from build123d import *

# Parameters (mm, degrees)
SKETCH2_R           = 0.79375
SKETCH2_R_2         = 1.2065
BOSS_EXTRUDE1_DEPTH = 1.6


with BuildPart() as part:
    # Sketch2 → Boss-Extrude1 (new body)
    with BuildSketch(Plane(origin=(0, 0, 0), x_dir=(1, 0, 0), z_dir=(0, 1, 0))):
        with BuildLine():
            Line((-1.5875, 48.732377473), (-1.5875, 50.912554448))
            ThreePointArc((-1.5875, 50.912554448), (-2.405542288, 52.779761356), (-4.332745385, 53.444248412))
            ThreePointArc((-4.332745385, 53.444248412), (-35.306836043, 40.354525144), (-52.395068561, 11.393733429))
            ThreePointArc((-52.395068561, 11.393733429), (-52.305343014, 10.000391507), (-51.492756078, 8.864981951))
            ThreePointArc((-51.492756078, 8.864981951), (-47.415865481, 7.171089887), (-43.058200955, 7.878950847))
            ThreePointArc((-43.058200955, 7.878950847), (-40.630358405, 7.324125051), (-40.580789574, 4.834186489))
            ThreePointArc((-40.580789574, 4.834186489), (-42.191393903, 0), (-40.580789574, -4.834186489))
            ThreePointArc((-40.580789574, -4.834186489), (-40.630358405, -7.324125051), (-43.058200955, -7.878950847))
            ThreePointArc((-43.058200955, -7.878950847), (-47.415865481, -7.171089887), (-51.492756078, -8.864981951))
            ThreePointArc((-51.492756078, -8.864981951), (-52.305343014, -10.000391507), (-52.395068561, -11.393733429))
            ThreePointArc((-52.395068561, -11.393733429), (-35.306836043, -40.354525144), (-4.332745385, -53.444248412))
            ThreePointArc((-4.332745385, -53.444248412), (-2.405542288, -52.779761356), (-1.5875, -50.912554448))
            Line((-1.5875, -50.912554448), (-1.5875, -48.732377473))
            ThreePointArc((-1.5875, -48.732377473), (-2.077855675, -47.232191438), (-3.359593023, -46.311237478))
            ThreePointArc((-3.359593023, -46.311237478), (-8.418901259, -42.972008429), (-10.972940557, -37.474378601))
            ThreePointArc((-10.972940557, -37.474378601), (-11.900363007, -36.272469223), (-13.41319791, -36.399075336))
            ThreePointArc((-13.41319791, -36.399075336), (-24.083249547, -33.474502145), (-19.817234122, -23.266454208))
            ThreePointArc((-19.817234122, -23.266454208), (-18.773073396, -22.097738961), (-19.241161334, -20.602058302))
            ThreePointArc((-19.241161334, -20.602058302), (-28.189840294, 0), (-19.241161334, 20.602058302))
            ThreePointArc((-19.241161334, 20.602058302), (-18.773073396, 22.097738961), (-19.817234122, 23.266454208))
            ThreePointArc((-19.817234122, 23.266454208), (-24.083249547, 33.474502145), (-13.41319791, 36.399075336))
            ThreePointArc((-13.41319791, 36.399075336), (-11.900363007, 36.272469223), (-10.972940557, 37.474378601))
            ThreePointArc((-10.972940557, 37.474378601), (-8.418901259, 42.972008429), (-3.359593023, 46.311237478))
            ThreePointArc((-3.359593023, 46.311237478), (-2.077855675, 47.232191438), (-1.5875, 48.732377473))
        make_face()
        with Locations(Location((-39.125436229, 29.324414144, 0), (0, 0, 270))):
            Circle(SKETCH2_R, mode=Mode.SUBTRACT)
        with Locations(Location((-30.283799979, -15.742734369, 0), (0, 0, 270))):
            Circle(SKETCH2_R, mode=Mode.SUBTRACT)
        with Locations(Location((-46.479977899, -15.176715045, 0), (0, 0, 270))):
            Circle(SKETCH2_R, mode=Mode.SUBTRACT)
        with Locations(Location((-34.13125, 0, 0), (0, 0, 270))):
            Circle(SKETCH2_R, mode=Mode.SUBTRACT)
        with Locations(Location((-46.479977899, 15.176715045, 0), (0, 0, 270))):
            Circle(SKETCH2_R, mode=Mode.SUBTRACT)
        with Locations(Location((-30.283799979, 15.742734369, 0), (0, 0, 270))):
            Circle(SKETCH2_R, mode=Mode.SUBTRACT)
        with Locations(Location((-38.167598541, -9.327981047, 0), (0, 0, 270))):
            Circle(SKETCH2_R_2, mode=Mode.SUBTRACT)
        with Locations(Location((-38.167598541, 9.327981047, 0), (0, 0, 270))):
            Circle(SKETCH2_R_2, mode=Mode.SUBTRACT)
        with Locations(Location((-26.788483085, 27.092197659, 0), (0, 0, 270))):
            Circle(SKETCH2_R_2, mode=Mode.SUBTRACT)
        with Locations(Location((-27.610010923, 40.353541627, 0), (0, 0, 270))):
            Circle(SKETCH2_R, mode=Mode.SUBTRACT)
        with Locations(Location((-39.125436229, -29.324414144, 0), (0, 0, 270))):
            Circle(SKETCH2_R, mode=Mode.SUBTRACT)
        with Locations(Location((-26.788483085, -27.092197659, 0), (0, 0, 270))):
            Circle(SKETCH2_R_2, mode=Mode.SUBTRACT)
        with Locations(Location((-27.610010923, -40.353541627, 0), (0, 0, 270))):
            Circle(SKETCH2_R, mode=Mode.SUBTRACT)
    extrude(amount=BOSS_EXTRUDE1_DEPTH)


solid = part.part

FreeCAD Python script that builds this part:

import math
import FreeCAD as App
import Part
import Sketcher

V = App.Vector
Q = App.Units.Quantity

doc = App.newDocument("Part")
params = doc.addObject("Spreadsheet::Sheet", "Params")
for row, (alias, value) in enumerate([
    ("sketch1_radius", "0.1 in"),
    ("sketch1_radius2", "0.29 in"),
    ("sketch1_diameter", "0.0625 in"),
    ("sketch1_diameter2", "0.095 in"),
    ("sketch1_radius3", "0.4375 in"),
    ("pad1_length", "1.6 mm"),
], start=1):
    params.set(f"A{row}", alias)
    params.set(f"B{row}", "=" + value)
    params.setAlias(f"B{row}", alias)

body = doc.addObject("PartDesign::Body", "Body")

# Sketch on XZ plane
sketch1 = body.newObject("Sketcher::SketchObject", "Sketch")
sketch1.AttachmentSupport = (doc.getObject("XZ_Plane"), [""])
sketch1.MapMode = "FlatFace"
sketch1.addGeometry(Part.LineSegment(V(-1.6, -48.7, 0), V(-1.6, -50.9, 0)), False)
sketch1.addGeometry(Part.ArcOfCircle(Part.Circle(V(-4.1, -50.9, 0), V(0, 0, 1), 2.5), math.radians(-95), math.radians(0)), False)
sketch1.addGeometry(Part.ArcOfCircle(Part.Circle(V(0, 0, 0), V(0, 0, 1), 53.6), math.radians(-168), math.radians(-95)), False)
sketch1.addGeometry(Part.ArcOfCircle(Part.Circle(V(-49.9, -10.9, 0), V(0, 0, 1), 2.5), math.radians(128), math.radians(192)), False)
sketch1.addGeometry(Part.ArcOfCircle(Part.Circle(V(-46.5, -15.2, 0), V(0, 0, 1), 8.1), math.radians(65), math.radians(128)), False)
sketch1.addGeometry(Part.ArcOfCircle(Part.Circle(V(-42.2, -6, 0), V(0, 0, 1), 2), math.radians(-115), math.radians(37)), False)
sketch1.addGeometry(Part.ArcOfCircle(Part.Circle(V(-34.1, 0, 0), V(0, 0, 1), 8.1), math.radians(143), math.radians(217)), False)
sketch1.addGeometry(Part.ArcOfCircle(Part.Circle(V(-42.2, 6, 0), V(0, 0, 1), 2), math.radians(-37), math.radians(115)), False)
sketch1.addGeometry(Part.ArcOfCircle(Part.Circle(V(-46.5, 15.2, 0), V(0, 0, 1), 8.1), math.radians(-128), math.radians(-65)), False)
sketch1.addGeometry(Part.ArcOfCircle(Part.Circle(V(-49.9, 10.9, 0), V(0, 0, 1), 2.5), math.radians(168), math.radians(232)), False)
sketch1.addGeometry(Part.ArcOfCircle(Part.Circle(V(0, 0, 0), V(0, 0, 1), 53.6), math.radians(95), math.radians(168)), False)
sketch1.addGeometry(Part.ArcOfCircle(Part.Circle(V(-4.1, 50.9, 0), V(0, 0, 1), 2.5), math.radians(0), math.radians(95)), False)
sketch1.addGeometry(Part.LineSegment(V(-1.6, 50.9, 0), V(-1.6, 48.7, 0)), False)
sketch1.addGeometry(Part.ArcOfCircle(Part.Circle(V(-4.1, 48.7, 0), V(0, 0, 1), 2.5), math.radians(-72), math.radians(0)), False)
sketch1.addGeometry(Part.ArcOfCircle(Part.Circle(V(0, 35.7, 0), V(0, 0, 1), 11.1), math.radians(108), math.radians(171)), False)
sketch1.addGeometry(Part.ArcOfCircle(Part.Circle(V(-12.5, 37.7, 0), V(0, 0, 1), 1.6), math.radians(-123), math.radians(-9)), False)
sketch1.addGeometry(Part.ArcOfCircle(Part.Circle(V(-17.5, 30.2, 0), V(0, 0, 1), 7.4), math.radians(57), math.radians(251)), False)
sketch1.addGeometry(Part.ArcOfCircle(Part.Circle(V(-20.3, 21.8, 0), V(0, 0, 1), 1.6), math.radians(-47), math.radians(71)), False)
sketch1.addGeometry(Part.ArcOfCircle(Part.Circle(V(0, 0, 0), V(0, 0, 1), 28.2), math.radians(133), math.radians(227)), False)
sketch1.addGeometry(Part.ArcOfCircle(Part.Circle(V(-20.3, -21.8, 0), V(0, 0, 1), 1.6), math.radians(-71), math.radians(47)), False)
sketch1.addGeometry(Part.ArcOfCircle(Part.Circle(V(-17.5, -30.2, 0), V(0, 0, 1), 7.4), math.radians(109), math.radians(303)), False)
sketch1.addGeometry(Part.ArcOfCircle(Part.Circle(V(-12.5, -37.7, 0), V(0, 0, 1), 1.6), math.radians(9), math.radians(123)), False)
sketch1.addGeometry(Part.ArcOfCircle(Part.Circle(V(0, -35.7, 0), V(0, 0, 1), 11.1), math.radians(-171), math.radians(-108)), False)
sketch1.addGeometry(Part.ArcOfCircle(Part.Circle(V(-4.1, -48.7, 0), V(0, 0, 1), 2.5), math.radians(0), math.radians(72)), False)
sketch1.addGeometry(Part.Circle(V(-39.1, 29.3, 0), V(0, 0, 1), 0.8), False)
sketch1.addGeometry(Part.Circle(V(-46.5, 15.2, 0), V(0, 0, 1), 0.8), False)
sketch1.addGeometry(Part.Circle(V(-38.2, 9.3, 0), V(0, 0, 1), 1.2), False)
sketch1.addGeometry(Part.Circle(V(-27.6, 40.4, 0), V(0, 0, 1), 0.8), False)
sketch1.addGeometry(Part.Circle(V(-26.8, 27.1, 0), V(0, 0, 1), 1.2), False)
sketch1.addGeometry(Part.Circle(V(-30.3, 15.7, 0), V(0, 0, 1), 0.8), False)
sketch1.addGeometry(Part.Circle(V(-46.5, -15.2, 0), V(0, 0, 1), 0.8), False)
sketch1.addGeometry(Part.Circle(V(-38.2, -9.3, 0), V(0, 0, 1), 1.2), False)
sketch1.addGeometry(Part.Circle(V(-39.1, -29.3, 0), V(0, 0, 1), 0.8), False)
sketch1.addGeometry(Part.Circle(V(-34.1, 0, 0), V(0, 0, 1), 0.8), False)
sketch1.addGeometry(Part.Circle(V(-30.3, -15.7, 0), V(0, 0, 1), 0.8), False)
sketch1.addGeometry(Part.Circle(V(-26.8, -27.1, 0), V(0, 0, 1), 1.2), False)
sketch1.addGeometry(Part.Circle(V(-27.6, -40.4, 0), V(0, 0, 1), 0.8), False)
sketch1.addConstraint(Sketcher.Constraint("Tangent", 0, 2, 1, 2))
sketch1.addConstraint(Sketcher.Constraint("Tangent", 1, 1, 2, 2))
sketch1.addConstraint(Sketcher.Constraint("Tangent", 2, 1, 3, 2))
sketch1.addConstraint(Sketcher.Constraint("Tangent", 3, 1, 4, 2))
sketch1.addConstraint(Sketcher.Constraint("Tangent", 4, 1, 5, 1))
sketch1.addConstraint(Sketcher.Constraint("Tangent", 5, 2, 6, 2))
sketch1.addConstraint(Sketcher.Constraint("Tangent", 6, 1, 7, 1))
sketch1.addConstraint(Sketcher.Constraint("Tangent", 7, 2, 8, 2))
sketch1.addConstraint(Sketcher.Constraint("Tangent", 8, 1, 9, 2))
sketch1.addConstraint(Sketcher.Constraint("Tangent", 9, 1, 10, 2))
sketch1.addConstraint(Sketcher.Constraint("Tangent", 10, 1, 11, 2))
sketch1.addConstraint(Sketcher.Constraint("Tangent", 11, 1, 12, 1))
sketch1.addConstraint(Sketcher.Constraint("Tangent", 12, 2, 13, 2))
sketch1.addConstraint(Sketcher.Constraint("Tangent", 13, 1, 14, 1))
sketch1.addConstraint(Sketcher.Constraint("Tangent", 14, 2, 15, 2))
sketch1.addConstraint(Sketcher.Constraint("Tangent", 15, 1, 16, 1))
sketch1.addConstraint(Sketcher.Constraint("Tangent", 16, 2, 17, 2))
sketch1.addConstraint(Sketcher.Constraint("Tangent", 17, 1, 18, 1))
sketch1.addConstraint(Sketcher.Constraint("Tangent", 18, 2, 19, 2))
sketch1.addConstraint(Sketcher.Constraint("Tangent", 19, 1, 20, 1))
sketch1.addConstraint(Sketcher.Constraint("Tangent", 20, 2, 21, 2))
sketch1.addConstraint(Sketcher.Constraint("Tangent", 21, 1, 22, 1))
sketch1.addConstraint(Sketcher.Constraint("Tangent", 22, 2, 23, 2))
sketch1.addConstraint(Sketcher.Constraint("Tangent", 23, 1, 0, 1))
sketch1.addConstraint(Sketcher.Constraint("Vertical", 0))
sketch1.addConstraint(Sketcher.Constraint("Vertical", 12))
sketch1.addConstraint(Sketcher.Constraint("Coincident", 2, 3, -1, 1))
sketch1.addConstraint(Sketcher.Constraint("Coincident", 10, 3, -1, 1))
sketch1.addConstraint(Sketcher.Constraint("Coincident", 18, 3, -1, 1))
sketch1.addConstraint(Sketcher.Constraint("Coincident", 25, 3, 8, 3))
sketch1.addConstraint(Sketcher.Constraint("Coincident", 30, 3, 4, 3))
sketch1.addConstraint(Sketcher.Constraint("Coincident", 33, 3, 6, 3))
sketch1.addConstraint(Sketcher.Constraint("Equal", 1, 3))
sketch1.addConstraint(Sketcher.Constraint("Equal", 4, 6))
sketch1.addConstraint(Sketcher.Constraint("Equal", 5, 7))
sketch1.addConstraint(Sketcher.Constraint("Equal", 6, 8))
sketch1.addConstraint(Sketcher.Constraint("Equal", 3, 9))
sketch1.addConstraint(Sketcher.Constraint("Equal", 2, 10))
sketch1.addConstraint(Sketcher.Constraint("Equal", 9, 11))
sketch1.addConstraint(Sketcher.Constraint("Equal", 11, 13))
sketch1.addConstraint(Sketcher.Constraint("Equal", 15, 17))
sketch1.addConstraint(Sketcher.Constraint("Equal", 17, 19))
sketch1.addConstraint(Sketcher.Constraint("Equal", 16, 20))
sketch1.addConstraint(Sketcher.Constraint("Equal", 19, 21))
sketch1.addConstraint(Sketcher.Constraint("Equal", 14, 22))
sketch1.addConstraint(Sketcher.Constraint("Equal", 13, 23))
sketch1.addConstraint(Sketcher.Constraint("Equal", 24, 25))
sketch1.addConstraint(Sketcher.Constraint("Equal", 25, 27))
sketch1.addConstraint(Sketcher.Constraint("Equal", 26, 28))
sketch1.addConstraint(Sketcher.Constraint("Equal", 27, 29))
sketch1.addConstraint(Sketcher.Constraint("Equal", 29, 30))
sketch1.addConstraint(Sketcher.Constraint("Equal", 28, 31))
sketch1.addConstraint(Sketcher.Constraint("Equal", 30, 32))
sketch1.addConstraint(Sketcher.Constraint("Equal", 32, 33))
sketch1.addConstraint(Sketcher.Constraint("Equal", 33, 34))
sketch1.addConstraint(Sketcher.Constraint("Equal", 31, 35))
sketch1.addConstraint(Sketcher.Constraint("Equal", 34, 36))
sketch1.addConstraint(Sketcher.Constraint("Symmetric", 14, 3, 22, 3, -1, 1))
sketch1.addConstraint(Sketcher.Constraint("Symmetric", 5, 3, 7, 3, -1))
sketch1.addConstraint(Sketcher.Constraint("Symmetric", 16, 3, 20, 3, -1))
sketch1.addConstraint(Sketcher.Constraint("Symmetric", 13, 3, 23, 3, -1))
sketch1.addConstraint(Sketcher.Constraint("Symmetric", 26, 3, 31, 3, -1))
sketch1.addConstraint(Sketcher.Constraint("Symmetric", 24, 3, 32, 3, -1))
sketch1.addConstraint(Sketcher.Constraint("Symmetric", 29, 3, 34, 3, -1))
sketch1.addConstraint(Sketcher.Constraint("Symmetric", 28, 3, 35, 3, -1))
sketch1.addConstraint(Sketcher.Constraint("Symmetric", 27, 3, 36, 3, -1))
sketch1.addConstraint(Sketcher.Constraint("Vertical", 4, 3, 8, 3))
sketch1.addConstraint(Sketcher.Constraint("Radius", 1, Q("0.1 in")))
sketch1.addConstraint(Sketcher.Constraint("Radius", 16, Q("0.29 in")))
sketch1.addConstraint(Sketcher.Constraint("Diameter", 24, Q("0.0625 in")))
sketch1.addConstraint(Sketcher.Constraint("Diameter", 26, Q("0.095 in")))
sketch1.addConstraint(Sketcher.Constraint("Radius", 14, Q("0.4375 in")))
sketch1.addConstraint(Sketcher.Constraint("Radius", 15, Q("0.0625 in")))
sketch1.addConstraint(Sketcher.Constraint("DistanceX", 6, 3, -1, 1, Q("1.34375 in")))
sketch1.addConstraint(Sketcher.Constraint("DistanceY", -1, 1, 14, 3, Q("1.40625 in")))
sketch1.addConstraint(Sketcher.Constraint("DistanceX", 16, 3, -1, 1, Q("0.6875 in")))
sketch1.addConstraint(Sketcher.Constraint("DistanceX", 0, 2, -1, 1, Q("0.0625 in")))
sketch1.addConstraint(Sketcher.Constraint("Radius", 2, 53.619589))
sketch1.addConstraint(Sketcher.Constraint("Radius", 5, 2.02286))
sketch1.addConstraint(Sketcher.Constraint("Radius", 18, 28.18984))
sketch1.addConstraint(Sketcher.Constraint("Radius", 4, 8.060144))
sketch1.addConstraint(Sketcher.Constraint("DistanceY", 28, 3, 27, 3, Q("0.5221002 in")))
sketch1.addConstraint(Sketcher.Constraint("DistanceX", 26, 3, -1, 1, 38.167599))
sketch1.addConstraint(Sketcher.Constraint("DistanceX", 29, 3, -1, 1, 30.2838))
sketch1.addConstraint(Sketcher.Constraint("DistanceX", 4, 1, -1, 1, 43.058201))
sketch1.addConstraint(Sketcher.Constraint("DistanceY", 8, 3, 24, 3, 14.147699))
sketch1.addConstraint(Sketcher.Constraint("DistanceX", 7, 3, 24, 3, 3.073999))
sketch1.addConstraint(Sketcher.Constraint("DistanceY", 14, 2, 13, 3, 11.257999))
sketch1.addConstraint(Sketcher.Constraint("DistanceY", -1, 1, 26, 3, 9.327981))
sketch1.addConstraint(Sketcher.Constraint("DistanceX", 27, 3, -1, 1, 27.610011))
sketch1.addConstraint(Sketcher.Constraint("DistanceY", -1, 1, 27, 3, 40.353542))
sketch1.addConstraint(Sketcher.Constraint("DistanceX", 2, 1, -1, 1, 52.395069))
sketch1.addConstraint(Sketcher.Constraint("DistanceX", 28, 3, 15, 3, 14.24798))
sketch1.addConstraint(Sketcher.Constraint("DistanceY", 29, 3, 17, 3, 6.019521))
sketch1.setExpression("Constraints[67]", "Params.sketch1_radius")
sketch1.setExpression("Constraints[68]", "Params.sketch1_radius2")
sketch1.setExpression("Constraints[69]", "Params.sketch1_diameter")
sketch1.setExpression("Constraints[70]", "Params.sketch1_diameter2")
sketch1.setExpression("Constraints[71]", "Params.sketch1_radius3")
pad1 = body.newObject("PartDesign::Pad", "Pad")
pad1.Profile = sketch1
pad1.setExpression("Length", "Params.pad1_length")
pad1.Reversed = True

doc.recompute()
